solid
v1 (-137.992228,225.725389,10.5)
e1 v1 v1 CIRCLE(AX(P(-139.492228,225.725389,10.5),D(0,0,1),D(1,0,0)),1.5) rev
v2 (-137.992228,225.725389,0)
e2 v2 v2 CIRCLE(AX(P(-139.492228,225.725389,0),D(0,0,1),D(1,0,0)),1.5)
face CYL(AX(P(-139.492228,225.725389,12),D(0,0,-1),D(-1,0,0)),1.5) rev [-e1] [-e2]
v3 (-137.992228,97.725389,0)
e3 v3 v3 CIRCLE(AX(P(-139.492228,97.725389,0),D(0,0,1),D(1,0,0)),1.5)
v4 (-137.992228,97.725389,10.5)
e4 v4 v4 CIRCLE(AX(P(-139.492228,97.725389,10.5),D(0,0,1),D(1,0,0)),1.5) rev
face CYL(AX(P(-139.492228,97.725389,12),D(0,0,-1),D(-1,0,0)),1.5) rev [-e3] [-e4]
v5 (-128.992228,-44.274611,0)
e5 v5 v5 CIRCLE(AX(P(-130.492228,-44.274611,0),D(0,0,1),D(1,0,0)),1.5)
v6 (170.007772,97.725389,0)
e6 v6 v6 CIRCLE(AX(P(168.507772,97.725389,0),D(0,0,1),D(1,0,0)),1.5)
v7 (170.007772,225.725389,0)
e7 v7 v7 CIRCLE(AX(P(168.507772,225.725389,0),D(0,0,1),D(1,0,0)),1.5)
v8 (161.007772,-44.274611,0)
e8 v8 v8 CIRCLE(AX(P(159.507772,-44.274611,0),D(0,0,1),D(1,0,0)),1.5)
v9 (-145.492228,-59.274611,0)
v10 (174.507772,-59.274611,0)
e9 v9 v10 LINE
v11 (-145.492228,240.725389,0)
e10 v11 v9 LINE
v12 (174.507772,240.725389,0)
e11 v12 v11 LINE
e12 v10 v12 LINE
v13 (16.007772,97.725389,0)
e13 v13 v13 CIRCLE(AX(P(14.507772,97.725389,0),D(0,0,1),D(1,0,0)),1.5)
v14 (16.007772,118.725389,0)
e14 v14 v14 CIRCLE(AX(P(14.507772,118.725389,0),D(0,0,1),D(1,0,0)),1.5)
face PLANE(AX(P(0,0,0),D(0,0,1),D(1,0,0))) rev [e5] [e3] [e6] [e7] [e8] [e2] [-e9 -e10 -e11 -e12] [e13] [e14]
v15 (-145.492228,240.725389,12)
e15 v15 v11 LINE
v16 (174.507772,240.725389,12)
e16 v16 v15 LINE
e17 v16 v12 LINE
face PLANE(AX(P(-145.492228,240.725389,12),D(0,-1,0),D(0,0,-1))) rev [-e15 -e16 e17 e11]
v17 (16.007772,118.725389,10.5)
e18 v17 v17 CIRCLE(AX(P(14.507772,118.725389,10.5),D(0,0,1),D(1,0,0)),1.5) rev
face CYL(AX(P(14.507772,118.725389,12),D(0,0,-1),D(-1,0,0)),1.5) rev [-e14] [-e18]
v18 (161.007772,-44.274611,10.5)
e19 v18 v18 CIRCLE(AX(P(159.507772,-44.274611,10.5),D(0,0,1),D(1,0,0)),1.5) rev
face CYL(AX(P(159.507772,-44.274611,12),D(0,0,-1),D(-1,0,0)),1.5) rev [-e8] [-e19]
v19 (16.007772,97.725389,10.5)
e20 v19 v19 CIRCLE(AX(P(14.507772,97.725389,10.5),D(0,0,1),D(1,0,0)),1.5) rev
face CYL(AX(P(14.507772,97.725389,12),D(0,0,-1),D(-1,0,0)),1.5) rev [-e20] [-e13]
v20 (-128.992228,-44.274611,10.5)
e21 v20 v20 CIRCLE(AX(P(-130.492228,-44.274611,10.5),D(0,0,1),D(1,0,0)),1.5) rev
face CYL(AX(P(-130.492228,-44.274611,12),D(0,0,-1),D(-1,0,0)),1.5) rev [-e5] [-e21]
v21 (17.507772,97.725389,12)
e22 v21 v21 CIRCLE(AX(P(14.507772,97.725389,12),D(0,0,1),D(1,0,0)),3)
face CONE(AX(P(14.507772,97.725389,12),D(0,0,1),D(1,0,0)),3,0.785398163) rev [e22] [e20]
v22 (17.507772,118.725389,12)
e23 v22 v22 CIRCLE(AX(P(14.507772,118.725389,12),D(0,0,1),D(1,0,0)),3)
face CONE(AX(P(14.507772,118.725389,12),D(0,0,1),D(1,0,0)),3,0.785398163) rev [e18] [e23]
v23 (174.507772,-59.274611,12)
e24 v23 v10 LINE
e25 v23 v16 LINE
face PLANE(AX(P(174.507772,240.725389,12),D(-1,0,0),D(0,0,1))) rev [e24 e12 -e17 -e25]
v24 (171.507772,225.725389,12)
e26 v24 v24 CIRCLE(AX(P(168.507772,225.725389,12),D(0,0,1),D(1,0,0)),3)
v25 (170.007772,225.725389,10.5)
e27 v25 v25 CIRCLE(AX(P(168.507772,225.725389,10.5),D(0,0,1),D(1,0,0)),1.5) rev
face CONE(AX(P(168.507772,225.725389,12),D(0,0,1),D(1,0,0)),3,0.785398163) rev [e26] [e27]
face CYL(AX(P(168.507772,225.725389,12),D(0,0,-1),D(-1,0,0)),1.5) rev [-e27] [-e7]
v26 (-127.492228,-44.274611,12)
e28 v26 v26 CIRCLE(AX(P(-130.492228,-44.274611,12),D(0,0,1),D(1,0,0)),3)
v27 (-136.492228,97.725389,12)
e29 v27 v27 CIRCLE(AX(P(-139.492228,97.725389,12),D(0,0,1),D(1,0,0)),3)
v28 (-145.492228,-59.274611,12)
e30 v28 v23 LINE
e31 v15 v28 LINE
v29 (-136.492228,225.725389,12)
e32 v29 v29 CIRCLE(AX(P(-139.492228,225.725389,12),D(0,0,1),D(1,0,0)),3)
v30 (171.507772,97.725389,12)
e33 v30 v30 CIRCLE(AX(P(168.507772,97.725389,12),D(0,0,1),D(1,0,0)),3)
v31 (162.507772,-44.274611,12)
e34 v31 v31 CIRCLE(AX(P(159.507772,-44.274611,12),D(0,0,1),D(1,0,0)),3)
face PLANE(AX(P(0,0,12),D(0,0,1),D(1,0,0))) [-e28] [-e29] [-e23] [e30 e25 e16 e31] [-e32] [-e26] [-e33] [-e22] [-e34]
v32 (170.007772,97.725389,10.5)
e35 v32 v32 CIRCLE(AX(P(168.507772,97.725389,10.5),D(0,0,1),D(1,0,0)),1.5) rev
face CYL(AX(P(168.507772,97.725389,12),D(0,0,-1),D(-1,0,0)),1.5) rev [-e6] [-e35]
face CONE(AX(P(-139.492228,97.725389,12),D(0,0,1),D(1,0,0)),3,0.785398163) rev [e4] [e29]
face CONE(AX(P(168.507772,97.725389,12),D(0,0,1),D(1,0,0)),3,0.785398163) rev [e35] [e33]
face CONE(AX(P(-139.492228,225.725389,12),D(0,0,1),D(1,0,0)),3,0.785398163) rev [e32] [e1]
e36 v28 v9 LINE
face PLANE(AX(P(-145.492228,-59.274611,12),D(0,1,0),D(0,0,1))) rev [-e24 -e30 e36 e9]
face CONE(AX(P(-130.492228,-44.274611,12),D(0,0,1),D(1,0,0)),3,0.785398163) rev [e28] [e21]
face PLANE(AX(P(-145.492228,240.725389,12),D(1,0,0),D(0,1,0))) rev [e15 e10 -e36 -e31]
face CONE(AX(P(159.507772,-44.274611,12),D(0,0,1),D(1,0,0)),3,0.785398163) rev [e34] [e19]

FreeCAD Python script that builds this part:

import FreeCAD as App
import Part
import Sketcher

V = App.Vector
Q = App.Units.Quantity

doc = App.newDocument("Part")
body = doc.addObject("PartDesign::Body", "Body")

# Sketch on XY plane
sketch1 = doc.addObject("Sketcher::SketchObject", "Sketch")
body.addObject(sketch1)
sketch1.AttachmentSupport = (doc.XY_Plane, [""])
sketch1.MapMode = "FlatFace"
sketch1.addGeometry([
    Part.LineSegment(V(-145.5, 240.7, 0), V(-145.5, -59.3, 0)),  # 0
    Part.LineSegment(V(-145.5, -59.3, 0), V(174.5, -59.3, 0)),  # 1
    Part.LineSegment(V(174.5, -59.3, 0), V(174.5, 240.7, 0)),  # 2
    Part.LineSegment(V(174.5, 240.7, 0), V(-145.5, 240.7, 0)),  # 3
    Part.Circle(V(-130.5, -44.3, 0), V(0, 0, 1), 1.5),  # 4
    Part.Circle(V(159.5, -44.3, 0), V(0, 0, 1), 1.5),  # 5
    Part.Circle(V(-139.5, 97.7, 0), V(0, 0, 1), 1.5),  # 6
    Part.Circle(V(-139.5, 225.7, 0), V(0, 0, 1), 1.5),  # 7
    Part.Circle(V(14.5, 97.7, 0), V(0, 0, 1), 1.5),  # 8
    Part.Circle(V(14.5, 118.7, 0), V(0, 0, 1), 1.5),  # 9
    Part.Circle(V(168.5, 97.7, 0), V(0, 0, 1), 1.5),  # 10
    Part.Circle(V(168.5, 225.7, 0), V(0, 0, 1), 1.5),  # 11
], False)
sketch1.addConstraint([
    Sketcher.Constraint("Coincident", 0, 2, 1, 1),
    Sketcher.Constraint("Coincident", 1, 2, 2, 1),
    Sketcher.Constraint("Coincident", 2, 2, 3, 1),
    Sketcher.Constraint("Coincident", 3, 2, 0, 1),
    Sketcher.Constraint("Vertical", 0),
    Sketcher.Constraint("Horizontal", 1),
    Sketcher.Constraint("Vertical", 2),
    Sketcher.Constraint("Horizontal", 3),
    Sketcher.Constraint("Equal", 4, 5),
    Sketcher.Constraint("Equal", 5, 6),
    Sketcher.Constraint("Equal", 6, 7),
    Sketcher.Constraint("Equal", 7, 8),
    Sketcher.Constraint("Equal", 8, 9),
    Sketcher.Constraint("Equal", 9, 10),
    Sketcher.Constraint("Equal", 10, 11),
    Sketcher.Constraint("Horizontal", 4, 3, 5, 3),
    Sketcher.Constraint("Horizontal", 6, 3, 8, 3),
    Sketcher.Constraint("Horizontal", 8, 3, 10, 3),
    Sketcher.Constraint("Horizontal", 7, 3, 11, 3),
    Sketcher.Constraint("Vertical", 6, 3, 7, 3),
    Sketcher.Constraint("Vertical", 8, 3, 9, 3),
    Sketcher.Constraint("Vertical", 10, 3, 11, 3),
    Sketcher.Constraint("Diameter", 4, Q("3 mm")),
    Sketcher.Constraint("DistanceX", 1, 1, 1, 2, Q("320 mm")),
    Sketcher.Constraint("DistanceY", 0, 2, 0, 1, Q("300 mm")),
    Sketcher.Constraint("DistanceX", 4, 3, 5, 3, Q("290 mm")),
    Sketcher.Constraint("DistanceX", 6, 3, 4, 3, Q("9 mm")),
    Sketcher.Constraint("DistanceY", 4, 3, 6, 3, Q("142 mm")),
    Sketcher.Constraint("DistanceY", 6, 3, 7, 3, Q("128 mm")),
    Sketcher.Constraint("DistanceX", 6, 3, 8, 3, Q("154 mm")),
    Sketcher.Constraint("DistanceY", 8, 3, 9, 3, Q("21 mm")),
    Sketcher.Constraint("DistanceX", 5, 3, 10, 3, Q("9 mm")),
    Sketcher.Constraint("DistanceX", 0, 2, 4, 3, Q("15 mm")),
    Sketcher.Constraint("DistanceY", 0, 2, 4, 3, Q("15 mm")),
    Sketcher.Constraint("DistanceY", 4, 3, -1, 1, Q("44.274611 mm")),
    Sketcher.Constraint("DistanceX", 4, 3, -1, 1, Q("130.492228 mm")),
])
pad1 = doc.addObject("PartDesign::Pad", "Pad")
body.addObject(pad1)
pad1.Profile = sketch1
pad1.Length = 12

# Sketch on YZ plane
sketch2 = doc.addObject("Sketcher::SketchObject", "Sketch001")
body.addObject(sketch2)
sketch2.AttachmentSupport = (doc.YZ_Plane, [""])
sketch2.MapMode = "FlatFace"
sketch2.AttachmentOffset = App.Placement(V(0, 0, -139.492228), App.Rotation())
sketch2.addGeometry([
    Part.LineSegment(V(225.7, 12, 0), V(222.7, 12, 0)),
    Part.LineSegment(V(222.7, 12, 0), V(225.7, 9, 0)),
    Part.LineSegment(V(225.7, 9, 0), V(225.7, 12, 0)),
], False)
sketch2.addGeometry(Part.LineSegment(V(225.7, 12, 0), V(225.7, 9, 0)), True)  # axis
sketch2.addConstraint([
    Sketcher.Constraint("Coincident", 0, 2, 1, 1),
    Sketcher.Constraint("Coincident", 1, 2, 2, 1),
    Sketcher.Constraint("Coincident", 2, 2, 0, 1),
    Sketcher.Constraint("Horizontal", 0),
    Sketcher.Constraint("Vertical", 2),
    Sketcher.Constraint("Vertical", 3),
    Sketcher.Constraint("Coincident", 3, 1, 2, 2),
    Sketcher.Constraint("Equal", 0, 2),
    Sketcher.Constraint("Equal", 2, 3),
    Sketcher.Constraint("DistanceX", 0, 2, 0, 1, Q("3 mm")),
    Sketcher.Constraint("DistanceY", -1, 1, 0, 2, Q("12 mm")),
    Sketcher.Constraint("DistanceX", -1, 1, 0, 2, Q("222.725389 mm")),
])
groove = doc.addObject("PartDesign::Groove", "Groove")
body.addObject(groove)
groove.Profile = sketch2
groove.ReferenceAxis = (sketch2, ["Axis0"])
groove.Angle = 360

# Sketch on YZ plane
sketch3 = doc.addObject("Sketcher::SketchObject", "Sketch002")
body.addObject(sketch3)
sketch3.AttachmentSupport = (doc.YZ_Plane, [""])
sketch3.MapMode = "FlatFace"
sketch3.AttachmentOffset = App.Placement(V(0, 0, -139.492228), App.Rotation())
sketch3.addGeometry([
    Part.LineSegment(V(97.7, 12, 0), V(94.7, 12, 0)),
    Part.LineSegment(V(94.7, 12, 0), V(97.7, 9, 0)),
    Part.LineSegment(V(97.7, 9, 0), V(97.7, 12, 0)),
], False)
sketch3.addGeometry(Part.LineSegment(V(97.7, 12, 0), V(97.7, 9, 0)), True)  # axis
sketch3.addConstraint([
    Sketcher.Constraint("Coincident", 0, 2, 1, 1),
    Sketcher.Constraint("Coincident", 1, 2, 2, 1),
    Sketcher.Constraint("Coincident", 2, 2, 0, 1),
    Sketcher.Constraint("Horizontal", 0),
    Sketcher.Constraint("Vertical", 2),
    Sketcher.Constraint("Vertical", 3),
    Sketcher.Constraint("Coincident", 3, 1, 2, 2),
    Sketcher.Constraint("Equal", 0, 2),
    Sketcher.Constraint("Equal", 2, 3),
    Sketcher.Constraint("DistanceX", 0, 2, 0, 1, Q("3 mm")),
    Sketcher.Constraint("DistanceY", -1, 1, 0, 2, Q("12 mm")),
    Sketcher.Constraint("DistanceX", -1, 1, 0, 2, Q("94.725389 mm")),
])
groove2 = doc.addObject("PartDesign::Groove", "Groove001")
body.addObject(groove2)
groove2.Profile = sketch3
groove2.ReferenceAxis = (sketch3, ["Axis0"])
groove2.Angle = 360

# Sketch on YZ plane
sketch4 = doc.addObject("Sketcher::SketchObject", "Sketch003")
body.addObject(sketch4)
sketch4.AttachmentSupport = (doc.YZ_Plane, [""])
sketch4.MapMode = "FlatFace"
sketch4.AttachmentOffset = App.Placement(V(0, 0, 168.507772), App.Rotation())
sketch4.addGeometry([
    Part.LineSegment(V(225.7, 12, 0), V(222.7, 12, 0)),
    Part.LineSegment(V(222.7, 12, 0), V(225.7, 9, 0)),
    Part.LineSegment(V(225.7, 9, 0), V(225.7, 12, 0)),
], False)
sketch4.addGeometry(Part.LineSegment(V(225.7, 12, 0), V(225.7, 9, 0)), True)  # axis
sketch4.addConstraint([
    Sketcher.Constraint("Coincident", 0, 2, 1, 1),
    Sketcher.Constraint("Coincident", 1, 2, 2, 1),
    Sketcher.Constraint("Coincident", 2, 2, 0, 1),
    Sketcher.Constraint("Horizontal", 0),
    Sketcher.Constraint("Vertical", 2),
    Sketcher.Constraint("Vertical", 3),
    Sketcher.Constraint("Coincident", 3, 1, 2, 2),
    Sketcher.Constraint("Equal", 0, 2),
    Sketcher.Constraint("Equal", 2, 3),
    Sketcher.Constraint("DistanceX", 0, 2, 0, 1, Q("3 mm")),
    Sketcher.Constraint("DistanceY", -1, 1, 0, 2, Q("12 mm")),
    Sketcher.Constraint("DistanceX", -1, 1, 0, 2, Q("222.725389 mm")),
])
groove3 = doc.addObject("PartDesign::Groove", "Groove002")
body.addObject(groove3)
groove3.Profile = sketch4
groove3.ReferenceAxis = (sketch4, ["Axis0"])
groove3.Angle = 360

# Sketch on YZ plane
sketch5 = doc.addObject("Sketcher::SketchObject", "Sketch004")
body.addObject(sketch5)
sketch5.AttachmentSupport = (doc.YZ_Plane, [""])
sketch5.MapMode = "FlatFace"
sketch5.AttachmentOffset = App.Placement(V(0, 0, 168.507772), App.Rotation())
sketch5.addGeometry([
    Part.LineSegment(V(97.7, 12, 0), V(94.7, 12, 0)),
    Part.LineSegment(V(94.7, 12, 0), V(97.7, 9, 0)),
    Part.LineSegment(V(97.7, 9, 0), V(97.7, 12, 0)),
], False)
sketch5.addGeometry(Part.LineSegment(V(97.7, 12, 0), V(97.7, 9, 0)), True)  # axis
sketch5.addConstraint([
    Sketcher.Constraint("Coincident", 0, 2, 1, 1),
    Sketcher.Constraint("Coincident", 1, 2, 2, 1),
    Sketcher.Constraint("Coincident", 2, 2, 0, 1),
    Sketcher.Constraint("Horizontal", 0),
    Sketcher.Constraint("Vertical", 2),
    Sketcher.Constraint("Vertical", 3),
    Sketcher.Constraint("Coincident", 3, 1, 2, 2),
    Sketcher.Constraint("Equal", 0, 2),
    Sketcher.Constraint("Equal", 2, 3),
    Sketcher.Constraint("DistanceX", 0, 2, 0, 1, Q("3 mm")),
    Sketcher.Constraint("DistanceY", -1, 1, 0, 2, Q("12 mm")),
    Sketcher.Constraint("DistanceX", -1, 1, 0, 2, Q("94.725389 mm")),
])
groove4 = doc.addObject("PartDesign::Groove", "Groove003")
body.addObject(groove4)
groove4.Profile = sketch5
groove4.ReferenceAxis = (sketch5, ["Axis0"])
groove4.Angle = 360

# Sketch on YZ plane
sketch6 = doc.addObject("Sketcher::SketchObject", "Sketch005")
body.addObject(sketch6)
sketch6.AttachmentSupport = (doc.YZ_Plane, [""])
sketch6.MapMode = "FlatFace"
sketch6.AttachmentOffset = App.Placement(V(0, 0, 14.507772), App.Rotation())
sketch6.addGeometry([
    Part.LineSegment(V(97.7, 12, 0), V(94.7, 12, 0)),
    Part.LineSegment(V(94.7, 12, 0), V(97.7, 9, 0)),
    Part.LineSegment(V(97.7, 9, 0), V(97.7, 12, 0)),
], False)
sketch6.addGeometry(Part.LineSegment(V(97.7, 12, 0), V(97.7, 9, 0)), True)  # axis
sketch6.addConstraint([
    Sketcher.Constraint("Coincident", 0, 2, 1, 1),
    Sketcher.Constraint("Coincident", 1, 2, 2, 1),
    Sketcher.Constraint("Coincident", 2, 2, 0, 1),
    Sketcher.Constraint("Horizontal", 0),
    Sketcher.Constraint("Vertical", 2),
    Sketcher.Constraint("Vertical", 3),
    Sketcher.Constraint("Coincident", 3, 1, 2, 2),
    Sketcher.Constraint("Equal", 0, 2),
    Sketcher.Constraint("Equal", 2, 3),
    Sketcher.Constraint("DistanceX", 0, 2, 0, 1, Q("3 mm")),
    Sketcher.Constraint("DistanceY", -1, 1, 0, 2, Q("12 mm")),
    Sketcher.Constraint("DistanceX", -1, 1, 0, 2, Q("94.725389 mm")),
])
groove5 = doc.addObject("PartDesign::Groove", "Groove004")
body.addObject(groove5)
groove5.Profile = sketch6
groove5.ReferenceAxis = (sketch6, ["Axis0"])
groove5.Angle = 360

# Sketch on YZ plane
sketch7 = doc.addObject("Sketcher::SketchObject", "Sketch006")
body.addObject(sketch7)
sketch7.AttachmentSupport = (doc.YZ_Plane, [""])
sketch7.MapMode = "FlatFace"
sketch7.AttachmentOffset = App.Placement(V(0, 0, 159.507772), App.Rotation())
sketch7.addGeometry([
    Part.LineSegment(V(-44.3, 12, 0), V(-47.3, 12, 0)),
    Part.LineSegment(V(-47.3, 12, 0), V(-44.3, 9, 0)),
    Part.LineSegment(V(-44.3, 9, 0), V(-44.3, 12, 0)),
], False)
sketch7.addGeometry(Part.LineSegment(V(-44.3, 12, 0), V(-44.3, 9, 0)), True)  # axis
sketch7.addConstraint([
    Sketcher.Constraint("Coincident", 0, 2, 1, 1),
    Sketcher.Constraint("Coincident", 1, 2, 2, 1),
    Sketcher.Constraint("Coincident", 2, 2, 0, 1),
    Sketcher.Constraint("Horizontal", 0),
    Sketcher.Constraint("Vertical", 2),
    Sketcher.Constraint("Vertical", 3),
    Sketcher.Constraint("Coincident", 3, 1, 2, 2),
    Sketcher.Constraint("Equal", 0, 2),
    Sketcher.Constraint("Equal", 2, 3),
    Sketcher.Constraint("DistanceX", 0, 2, 0, 1, Q("3 mm")),
    Sketcher.Constraint("DistanceY", -1, 1, 0, 2, Q("12 mm")),
    Sketcher.Constraint("DistanceX", 0, 2, -1, 1, Q("47.274611 mm")),
])
groove6 = doc.addObject("PartDesign::Groove", "Groove005")
body.addObject(groove6)
groove6.Profile = sketch7
groove6.ReferenceAxis = (sketch7, ["Axis0"])
groove6.Angle = 360

# Sketch on YZ plane
sketch8 = doc.addObject("Sketcher::SketchObject", "Sketch007")
body.addObject(sketch8)
sketch8.AttachmentSupport = (doc.YZ_Plane, [""])
sketch8.MapMode = "FlatFace"
sketch8.AttachmentOffset = App.Placement(V(0, 0, -130.492228), App.Rotation())
sketch8.addGeometry([
    Part.LineSegment(V(-44.3, 12, 0), V(-47.3, 12, 0)),
    Part.LineSegment(V(-47.3, 12, 0), V(-44.3, 9, 0)),
    Part.LineSegment(V(-44.3, 9, 0), V(-44.3, 12, 0)),
], False)
sketch8.addGeometry(Part.LineSegment(V(-44.3, 12, 0), V(-44.3, 9, 0)), True)  # axis
sketch8.addConstraint([
    Sketcher.Constraint("Coincident", 0, 2, 1, 1),
    Sketcher.Constraint("Coincident", 1, 2, 2, 1),
    Sketcher.Constraint("Coincident", 2, 2, 0, 1),
    Sketcher.Constraint("Horizontal", 0),
    Sketcher.Constraint("Vertical", 2),
    Sketcher.Constraint("Vertical", 3),
    Sketcher.Constraint("Coincident", 3, 1, 2, 2),
    Sketcher.Constraint("Equal", 0, 2),
    Sketcher.Constraint("Equal", 2, 3),
    Sketcher.Constraint("DistanceX", 0, 2, 0, 1, Q("3 mm")),
    Sketcher.Constraint("DistanceY", -1, 1, 0, 2, Q("12 mm")),
    Sketcher.Constraint("DistanceX", 0, 2, -1, 1, Q("47.274611 mm")),
])
groove7 = doc.addObject("PartDesign::Groove", "Groove006")
body.addObject(groove7)
groove7.Profile = sketch8
groove7.ReferenceAxis = (sketch8, ["Axis0"])
groove7.Angle = 360

# Sketch on YZ plane
sketch9 = doc.addObject("Sketcher::SketchObject", "Sketch008")
body.addObject(sketch9)
sketch9.AttachmentSupport = (doc.YZ_Plane, [""])
sketch9.MapMode = "FlatFace"
sketch9.AttachmentOffset = App.Placement(V(0, 0, 14.507772), App.Rotation())
sketch9.addGeometry([
    Part.LineSegment(V(118.7, 12, 0), V(115.7, 12, 0)),
    Part.LineSegment(V(115.7, 12, 0), V(118.7, 9, 0)),
    Part.LineSegment(V(118.7, 9, 0), V(118.7, 12, 0)),
], False)
sketch9.addGeometry(Part.LineSegment(V(118.7, 12, 0), V(118.7, 9, 0)), True)  # axis
sketch9.addConstraint([
    Sketcher.Constraint("Coincident", 0, 2, 1, 1),
    Sketcher.Constraint("Coincident", 1, 2, 2, 1),
    Sketcher.Constraint("Coincident", 2, 2, 0, 1),
    Sketcher.Constraint("Horizontal", 0),
    Sketcher.Constraint("Vertical", 2),
    Sketcher.Constraint("Vertical", 3),
    Sketcher.Constraint("Coincident", 3, 1, 2, 2),
    Sketcher.Constraint("Equal", 0, 2),
    Sketcher.Constraint("Equal", 2, 3),
    Sketcher.Constraint("DistanceX", 0, 2, 0, 1, Q("3 mm")),
    Sketcher.Constraint("DistanceY", -1, 1, 0, 2, Q("12 mm")),
    Sketcher.Constraint("DistanceX", -1, 1, 0, 2, Q("115.725389 mm")),
])
groove8 = doc.addObject("PartDesign::Groove", "Groove007")
body.addObject(groove8)
groove8.Profile = sketch9
groove8.ReferenceAxis = (sketch9, ["Axis0"])
groove8.Angle = 360

doc.recompute()
